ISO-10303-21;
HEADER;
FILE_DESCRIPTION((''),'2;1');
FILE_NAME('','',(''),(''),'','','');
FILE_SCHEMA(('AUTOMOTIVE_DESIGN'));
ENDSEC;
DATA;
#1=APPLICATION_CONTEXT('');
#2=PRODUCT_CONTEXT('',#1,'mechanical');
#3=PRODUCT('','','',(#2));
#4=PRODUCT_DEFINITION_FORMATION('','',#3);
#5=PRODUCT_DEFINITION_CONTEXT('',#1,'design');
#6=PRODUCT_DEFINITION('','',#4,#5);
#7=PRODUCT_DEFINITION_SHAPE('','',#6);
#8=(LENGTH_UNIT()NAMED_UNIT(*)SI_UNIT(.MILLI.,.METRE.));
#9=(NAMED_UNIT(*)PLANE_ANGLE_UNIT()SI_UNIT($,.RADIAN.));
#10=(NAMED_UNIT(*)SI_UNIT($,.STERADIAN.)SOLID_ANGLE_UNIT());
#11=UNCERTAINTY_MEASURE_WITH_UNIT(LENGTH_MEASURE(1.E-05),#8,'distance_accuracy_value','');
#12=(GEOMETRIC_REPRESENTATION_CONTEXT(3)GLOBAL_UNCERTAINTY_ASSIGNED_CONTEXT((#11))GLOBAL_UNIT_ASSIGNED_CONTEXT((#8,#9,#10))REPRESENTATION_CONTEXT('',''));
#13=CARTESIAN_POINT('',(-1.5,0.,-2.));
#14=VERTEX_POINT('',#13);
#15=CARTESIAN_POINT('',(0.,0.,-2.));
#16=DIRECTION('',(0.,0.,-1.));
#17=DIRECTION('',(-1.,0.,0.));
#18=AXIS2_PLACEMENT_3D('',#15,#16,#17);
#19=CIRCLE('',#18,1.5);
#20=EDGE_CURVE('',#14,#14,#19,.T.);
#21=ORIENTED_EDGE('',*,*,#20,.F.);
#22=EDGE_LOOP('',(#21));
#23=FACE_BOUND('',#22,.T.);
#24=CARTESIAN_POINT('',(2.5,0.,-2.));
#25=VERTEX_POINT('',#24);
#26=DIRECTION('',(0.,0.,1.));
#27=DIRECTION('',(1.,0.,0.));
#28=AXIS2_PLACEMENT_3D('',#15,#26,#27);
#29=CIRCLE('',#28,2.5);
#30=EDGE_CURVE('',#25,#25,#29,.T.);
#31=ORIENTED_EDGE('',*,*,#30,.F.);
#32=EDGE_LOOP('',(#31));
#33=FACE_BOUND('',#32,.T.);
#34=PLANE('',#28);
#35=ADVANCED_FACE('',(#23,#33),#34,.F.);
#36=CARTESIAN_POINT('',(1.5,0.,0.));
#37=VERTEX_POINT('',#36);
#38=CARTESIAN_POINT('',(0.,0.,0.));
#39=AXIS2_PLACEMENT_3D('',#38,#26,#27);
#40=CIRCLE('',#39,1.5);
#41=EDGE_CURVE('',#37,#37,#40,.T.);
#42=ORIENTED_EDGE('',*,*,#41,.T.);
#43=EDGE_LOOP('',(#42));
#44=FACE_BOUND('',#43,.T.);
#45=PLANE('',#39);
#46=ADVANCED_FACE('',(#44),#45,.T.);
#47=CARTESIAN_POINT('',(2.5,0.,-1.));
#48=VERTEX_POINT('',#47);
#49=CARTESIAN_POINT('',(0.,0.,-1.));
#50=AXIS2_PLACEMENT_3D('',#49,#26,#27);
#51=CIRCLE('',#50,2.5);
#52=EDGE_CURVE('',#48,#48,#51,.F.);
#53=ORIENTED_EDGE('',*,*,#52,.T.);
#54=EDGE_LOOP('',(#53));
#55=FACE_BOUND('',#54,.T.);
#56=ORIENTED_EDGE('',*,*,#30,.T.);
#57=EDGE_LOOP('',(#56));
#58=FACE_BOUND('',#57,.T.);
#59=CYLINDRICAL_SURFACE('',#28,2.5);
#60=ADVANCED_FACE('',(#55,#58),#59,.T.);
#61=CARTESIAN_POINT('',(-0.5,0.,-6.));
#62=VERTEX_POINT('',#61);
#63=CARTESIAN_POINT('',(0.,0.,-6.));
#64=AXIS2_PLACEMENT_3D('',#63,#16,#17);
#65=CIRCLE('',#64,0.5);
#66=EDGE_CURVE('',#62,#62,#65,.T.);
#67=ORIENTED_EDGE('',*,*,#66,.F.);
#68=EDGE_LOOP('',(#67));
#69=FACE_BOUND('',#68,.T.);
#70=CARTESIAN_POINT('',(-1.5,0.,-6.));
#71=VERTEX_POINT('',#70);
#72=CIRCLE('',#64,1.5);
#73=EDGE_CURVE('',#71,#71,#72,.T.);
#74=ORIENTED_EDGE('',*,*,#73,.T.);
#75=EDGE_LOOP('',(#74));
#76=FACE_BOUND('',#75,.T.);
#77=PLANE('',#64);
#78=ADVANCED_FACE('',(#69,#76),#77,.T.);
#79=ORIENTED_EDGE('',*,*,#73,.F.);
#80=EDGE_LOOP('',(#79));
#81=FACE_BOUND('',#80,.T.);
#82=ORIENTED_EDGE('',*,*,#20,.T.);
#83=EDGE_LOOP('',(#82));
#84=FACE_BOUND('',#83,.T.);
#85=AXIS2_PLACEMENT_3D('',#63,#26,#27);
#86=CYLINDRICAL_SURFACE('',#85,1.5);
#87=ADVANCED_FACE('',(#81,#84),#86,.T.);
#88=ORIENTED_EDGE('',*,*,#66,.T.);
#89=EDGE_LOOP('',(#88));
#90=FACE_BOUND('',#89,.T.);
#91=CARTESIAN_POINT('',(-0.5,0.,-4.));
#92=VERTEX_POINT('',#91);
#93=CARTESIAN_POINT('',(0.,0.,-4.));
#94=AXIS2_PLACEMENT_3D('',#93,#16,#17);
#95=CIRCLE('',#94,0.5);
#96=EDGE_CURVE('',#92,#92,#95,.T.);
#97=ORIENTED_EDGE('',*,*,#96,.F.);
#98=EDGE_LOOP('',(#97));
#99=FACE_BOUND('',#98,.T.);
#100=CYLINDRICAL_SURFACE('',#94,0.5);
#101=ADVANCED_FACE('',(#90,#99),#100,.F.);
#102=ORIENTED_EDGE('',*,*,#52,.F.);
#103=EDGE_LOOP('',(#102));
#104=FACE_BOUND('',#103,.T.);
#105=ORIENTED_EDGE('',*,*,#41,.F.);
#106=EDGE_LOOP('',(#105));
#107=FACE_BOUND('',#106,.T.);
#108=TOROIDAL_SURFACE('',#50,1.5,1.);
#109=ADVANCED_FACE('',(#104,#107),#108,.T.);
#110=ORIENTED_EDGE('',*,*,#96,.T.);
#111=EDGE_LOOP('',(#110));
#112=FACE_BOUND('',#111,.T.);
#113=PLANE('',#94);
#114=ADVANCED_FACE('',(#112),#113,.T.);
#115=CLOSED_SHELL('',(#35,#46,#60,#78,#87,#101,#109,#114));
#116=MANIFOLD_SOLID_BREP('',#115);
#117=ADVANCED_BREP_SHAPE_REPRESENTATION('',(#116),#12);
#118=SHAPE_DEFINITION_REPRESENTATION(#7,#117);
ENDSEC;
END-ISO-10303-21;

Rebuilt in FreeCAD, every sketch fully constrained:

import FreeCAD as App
import Part
import Sketcher


def edges_at(feature, points):
    """Names of the edges that pass closest to the given points."""
    edges = feature.Shape.Edges
    near = lambda p: min(range(len(edges)), key=lambda i: edges[i].distToShape(Part.Vertex(*p))[0])
    return sorted({f"Edge{near(p) + 1}" for p in points})

doc = App.newDocument("Part")
body = doc.addObject("PartDesign::Body", "Body")

# Sketch on XY plane
sketch1 = body.newObject("Sketcher::SketchObject", "Sketch")
sketch1.AttachmentSupport = (doc.getObject("XY_Plane"), [""])
sketch1.MapMode = "FlatFace"
sketch1.addGeometry(Part.Circle(App.Vector(0, 0, 0), App.Vector(0, 0, 1), 2.5), False)
sketch1.addConstraint([
    Sketcher.Constraint("Coincident", 0, 3, -1, 1),
    Sketcher.Constraint("Diameter", 0, 5.0),
])
pad1 = body.newObject("PartDesign::Pad", "Pad")
pad1.Profile = sketch1
pad1.Length = 2
pad1.Reversed = True

# Sketch on XY plane
sketch2 = body.newObject("Sketcher::SketchObject", "Sketch001")
sketch2.AttachmentSupport = (doc.getObject("XY_Plane"), [""])
sketch2.MapMode = "FlatFace"
sketch2.AttachmentOffset = App.Placement(App.Vector(0, 0, -2), App.Rotation())
sketch2.addGeometry(Part.Circle(App.Vector(0, 0, 0), App.Vector(0, 0, 1), 1.5), False)
sketch2.addConstraint([
    Sketcher.Constraint("Coincident", 0, 3, -1, 1),
    Sketcher.Constraint("Diameter", 0, 3.0),
])
pad2 = body.newObject("PartDesign::Pad", "Pad001")
pad2.Profile = sketch2
pad2.Length = 4
pad2.Reversed = True
doc.recompute()

fillet = body.newObject("PartDesign::Fillet", "Fillet")
fillet.Base = (pad2, edges_at(pad2, [(-2.5, 0, 0)]))
fillet.Radius = 1

# Sketch on XY plane
sketch3 = body.newObject("Sketcher::SketchObject", "Sketch002")
sketch3.AttachmentSupport = (doc.getObject("XY_Plane"), [""])
sketch3.MapMode = "FlatFace"
sketch3.AttachmentOffset = App.Placement(App.Vector(0, 0, -6), App.Rotation())
sketch3.addGeometry(Part.Circle(App.Vector(0, 0, 0), App.Vector(0, 0, 1), 0.5), False)
sketch3.addConstraint([
    Sketcher.Constraint("Coincident", 0, 3, -1, 1),
    Sketcher.Constraint("Diameter", 0, 1.0),
])
pocket1 = body.newObject("PartDesign::Pocket", "Pocket")
pocket1.Profile = sketch3
pocket1.Length = 2
pocket1.Reversed = True

doc.recompute()
